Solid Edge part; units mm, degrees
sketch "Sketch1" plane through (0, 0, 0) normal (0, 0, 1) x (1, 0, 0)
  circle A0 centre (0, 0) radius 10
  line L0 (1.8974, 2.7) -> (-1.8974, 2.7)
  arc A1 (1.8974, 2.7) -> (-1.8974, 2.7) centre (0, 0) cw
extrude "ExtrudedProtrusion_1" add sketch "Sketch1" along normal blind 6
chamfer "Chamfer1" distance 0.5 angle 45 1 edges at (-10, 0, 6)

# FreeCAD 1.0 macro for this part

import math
import FreeCAD as App
import Part
import Sketcher
from FreeCAD import Vector
Q = App.Units.Quantity


def edges_at(feature, points):
    """Names of the edges that pass closest to the given points."""
    edges = feature.Shape.Edges
    near = lambda p: min(range(len(edges)), key=lambda i: edges[i].distToShape(Part.Vertex(*p))[0])
    return sorted({f"Edge{near(p) + 1}" for p in points})

doc = App.newDocument("Part")
body = doc.addObject("PartDesign::Body", "Body")

# Sketch on XY plane
sketch1 = doc.addObject("Sketcher::SketchObject", "Sketch")
body.addObject(sketch1)
sketch1.AttachmentSupport = (doc.XY_Plane, [""])
sketch1.MapMode = "FlatFace"
sketch1.addGeometry([
    Part.Circle(Vector(0, 0, 0), Vector(0, 0, 1), 10),
    Part.LineSegment(Vector(-1.9, 2.7, 0), Vector(1.9, 2.7, 0)),
    Part.ArcOfCircle(Part.Circle(Vector(0, 0, 0), Vector(0, 0, 1), 3.3), math.radians(125), math.radians(415)),
], False)
sketch1.addConstraint([
    Sketcher.Constraint("Coincident", 1, 1, 2, 1),
    Sketcher.Constraint("Coincident", 2, 2, 1, 2),
    Sketcher.Constraint("Horizontal", 1),
    Sketcher.Constraint("Coincident", 0, 3, -1, 1),
    Sketcher.Constraint("Coincident", 2, 3, -1, 1),
    Sketcher.Constraint("Diameter", 0, Q("20 mm")),
    Sketcher.Constraint("Radius", 2, Q("3.3 mm")),
    Sketcher.Constraint("DistanceY", -1, 1, 1, 1, Q("2.7 mm")),
])
pad1 = doc.addObject("PartDesign::Pad", "Pad")
body.addObject(pad1)
pad1.Profile = sketch1
pad1.Length = 6
doc.recompute()

chamfer = doc.addObject("PartDesign::Chamfer", "Chamfer")
body.addObject(chamfer)
chamfer.Base = (pad1, edges_at(pad1, [(-10, 0, 6)]))
chamfer.Size = 0.5

doc.recompute()
